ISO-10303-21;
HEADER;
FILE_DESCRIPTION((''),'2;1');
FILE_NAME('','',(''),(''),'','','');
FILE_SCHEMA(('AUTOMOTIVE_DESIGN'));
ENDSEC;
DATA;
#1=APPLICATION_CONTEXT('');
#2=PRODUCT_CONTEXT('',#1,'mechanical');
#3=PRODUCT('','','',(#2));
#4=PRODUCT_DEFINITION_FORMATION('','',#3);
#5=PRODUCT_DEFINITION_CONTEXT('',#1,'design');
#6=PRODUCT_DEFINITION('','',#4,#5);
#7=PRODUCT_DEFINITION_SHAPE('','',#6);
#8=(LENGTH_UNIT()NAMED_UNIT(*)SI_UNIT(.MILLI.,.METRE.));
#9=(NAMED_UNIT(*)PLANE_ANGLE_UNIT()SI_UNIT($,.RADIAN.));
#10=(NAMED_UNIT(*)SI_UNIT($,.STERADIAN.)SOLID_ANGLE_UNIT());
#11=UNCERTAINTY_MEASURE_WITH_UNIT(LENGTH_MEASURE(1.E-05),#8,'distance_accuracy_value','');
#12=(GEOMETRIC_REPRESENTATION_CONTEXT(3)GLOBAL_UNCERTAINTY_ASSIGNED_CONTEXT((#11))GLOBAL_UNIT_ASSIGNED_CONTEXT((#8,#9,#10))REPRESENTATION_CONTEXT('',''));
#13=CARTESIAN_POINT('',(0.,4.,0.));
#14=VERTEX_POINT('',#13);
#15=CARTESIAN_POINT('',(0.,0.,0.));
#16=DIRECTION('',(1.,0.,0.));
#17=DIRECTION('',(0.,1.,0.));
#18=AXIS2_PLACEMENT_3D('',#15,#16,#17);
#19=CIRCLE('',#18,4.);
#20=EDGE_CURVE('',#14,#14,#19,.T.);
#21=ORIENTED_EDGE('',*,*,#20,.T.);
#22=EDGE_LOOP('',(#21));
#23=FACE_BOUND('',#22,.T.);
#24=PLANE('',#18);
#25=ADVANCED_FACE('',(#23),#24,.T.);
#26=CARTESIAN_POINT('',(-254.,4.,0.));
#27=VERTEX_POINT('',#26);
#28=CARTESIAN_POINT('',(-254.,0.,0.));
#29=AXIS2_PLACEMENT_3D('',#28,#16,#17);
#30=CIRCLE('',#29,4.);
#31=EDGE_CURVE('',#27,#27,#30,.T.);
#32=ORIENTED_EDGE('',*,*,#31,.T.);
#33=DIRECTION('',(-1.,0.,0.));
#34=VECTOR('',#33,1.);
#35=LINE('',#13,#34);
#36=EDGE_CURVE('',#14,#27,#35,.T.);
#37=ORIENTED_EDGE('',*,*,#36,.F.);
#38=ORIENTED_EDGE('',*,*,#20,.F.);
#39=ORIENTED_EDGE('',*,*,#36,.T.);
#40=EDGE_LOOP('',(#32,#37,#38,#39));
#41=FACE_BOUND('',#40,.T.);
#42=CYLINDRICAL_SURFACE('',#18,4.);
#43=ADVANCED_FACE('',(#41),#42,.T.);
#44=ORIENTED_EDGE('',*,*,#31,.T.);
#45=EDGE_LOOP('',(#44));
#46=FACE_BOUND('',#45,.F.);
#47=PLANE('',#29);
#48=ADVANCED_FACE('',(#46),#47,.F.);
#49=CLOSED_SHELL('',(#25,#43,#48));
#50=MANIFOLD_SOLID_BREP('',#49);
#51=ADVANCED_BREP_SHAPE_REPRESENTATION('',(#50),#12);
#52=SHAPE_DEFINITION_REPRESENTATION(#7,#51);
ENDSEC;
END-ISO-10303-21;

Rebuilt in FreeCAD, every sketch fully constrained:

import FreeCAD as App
import Part
import Sketcher
from FreeCAD import Vector
Q = App.Units.Quantity

doc = App.newDocument("Part")
params = doc.addObject("Spreadsheet::Sheet", "Params")
for row, (alias, value) in enumerate([
    ("sketch1_diameter", "8 mm"),
    ("pad1_length", "254 mm"),
], start=1):
    params.set(f"A{row}", alias)
    params.set(f"B{row}", "=" + value)
    params.setAlias(f"B{row}", alias)

body = doc.addObject("PartDesign::Body", "Body")

sketch1 = body.newObject("Sketcher::SketchObject", "Sketch")
sketch1.AttachmentSupport = (doc.getObject("YZ_Plane"), [""])
sketch1.MapMode = "FlatFace"
sketch1.addGeometry(Part.Circle(Vector(0, 0, 0), Vector(0, 0, 1), 4), False)
sketch1.addConstraint(Sketcher.Constraint("Coincident", 0, 3, -1, 1))
sketch1.addConstraint(Sketcher.Constraint("Diameter", 0, Q("8 mm")))
sketch1.setExpression("Constraints[1]", "Params.sketch1_diameter")
pad1 = body.newObject("PartDesign::Pad", "Pad")
pad1.Profile = sketch1
pad1.setExpression("Length", "Params.pad1_length")
pad1.Reversed = True

doc.recompute()
